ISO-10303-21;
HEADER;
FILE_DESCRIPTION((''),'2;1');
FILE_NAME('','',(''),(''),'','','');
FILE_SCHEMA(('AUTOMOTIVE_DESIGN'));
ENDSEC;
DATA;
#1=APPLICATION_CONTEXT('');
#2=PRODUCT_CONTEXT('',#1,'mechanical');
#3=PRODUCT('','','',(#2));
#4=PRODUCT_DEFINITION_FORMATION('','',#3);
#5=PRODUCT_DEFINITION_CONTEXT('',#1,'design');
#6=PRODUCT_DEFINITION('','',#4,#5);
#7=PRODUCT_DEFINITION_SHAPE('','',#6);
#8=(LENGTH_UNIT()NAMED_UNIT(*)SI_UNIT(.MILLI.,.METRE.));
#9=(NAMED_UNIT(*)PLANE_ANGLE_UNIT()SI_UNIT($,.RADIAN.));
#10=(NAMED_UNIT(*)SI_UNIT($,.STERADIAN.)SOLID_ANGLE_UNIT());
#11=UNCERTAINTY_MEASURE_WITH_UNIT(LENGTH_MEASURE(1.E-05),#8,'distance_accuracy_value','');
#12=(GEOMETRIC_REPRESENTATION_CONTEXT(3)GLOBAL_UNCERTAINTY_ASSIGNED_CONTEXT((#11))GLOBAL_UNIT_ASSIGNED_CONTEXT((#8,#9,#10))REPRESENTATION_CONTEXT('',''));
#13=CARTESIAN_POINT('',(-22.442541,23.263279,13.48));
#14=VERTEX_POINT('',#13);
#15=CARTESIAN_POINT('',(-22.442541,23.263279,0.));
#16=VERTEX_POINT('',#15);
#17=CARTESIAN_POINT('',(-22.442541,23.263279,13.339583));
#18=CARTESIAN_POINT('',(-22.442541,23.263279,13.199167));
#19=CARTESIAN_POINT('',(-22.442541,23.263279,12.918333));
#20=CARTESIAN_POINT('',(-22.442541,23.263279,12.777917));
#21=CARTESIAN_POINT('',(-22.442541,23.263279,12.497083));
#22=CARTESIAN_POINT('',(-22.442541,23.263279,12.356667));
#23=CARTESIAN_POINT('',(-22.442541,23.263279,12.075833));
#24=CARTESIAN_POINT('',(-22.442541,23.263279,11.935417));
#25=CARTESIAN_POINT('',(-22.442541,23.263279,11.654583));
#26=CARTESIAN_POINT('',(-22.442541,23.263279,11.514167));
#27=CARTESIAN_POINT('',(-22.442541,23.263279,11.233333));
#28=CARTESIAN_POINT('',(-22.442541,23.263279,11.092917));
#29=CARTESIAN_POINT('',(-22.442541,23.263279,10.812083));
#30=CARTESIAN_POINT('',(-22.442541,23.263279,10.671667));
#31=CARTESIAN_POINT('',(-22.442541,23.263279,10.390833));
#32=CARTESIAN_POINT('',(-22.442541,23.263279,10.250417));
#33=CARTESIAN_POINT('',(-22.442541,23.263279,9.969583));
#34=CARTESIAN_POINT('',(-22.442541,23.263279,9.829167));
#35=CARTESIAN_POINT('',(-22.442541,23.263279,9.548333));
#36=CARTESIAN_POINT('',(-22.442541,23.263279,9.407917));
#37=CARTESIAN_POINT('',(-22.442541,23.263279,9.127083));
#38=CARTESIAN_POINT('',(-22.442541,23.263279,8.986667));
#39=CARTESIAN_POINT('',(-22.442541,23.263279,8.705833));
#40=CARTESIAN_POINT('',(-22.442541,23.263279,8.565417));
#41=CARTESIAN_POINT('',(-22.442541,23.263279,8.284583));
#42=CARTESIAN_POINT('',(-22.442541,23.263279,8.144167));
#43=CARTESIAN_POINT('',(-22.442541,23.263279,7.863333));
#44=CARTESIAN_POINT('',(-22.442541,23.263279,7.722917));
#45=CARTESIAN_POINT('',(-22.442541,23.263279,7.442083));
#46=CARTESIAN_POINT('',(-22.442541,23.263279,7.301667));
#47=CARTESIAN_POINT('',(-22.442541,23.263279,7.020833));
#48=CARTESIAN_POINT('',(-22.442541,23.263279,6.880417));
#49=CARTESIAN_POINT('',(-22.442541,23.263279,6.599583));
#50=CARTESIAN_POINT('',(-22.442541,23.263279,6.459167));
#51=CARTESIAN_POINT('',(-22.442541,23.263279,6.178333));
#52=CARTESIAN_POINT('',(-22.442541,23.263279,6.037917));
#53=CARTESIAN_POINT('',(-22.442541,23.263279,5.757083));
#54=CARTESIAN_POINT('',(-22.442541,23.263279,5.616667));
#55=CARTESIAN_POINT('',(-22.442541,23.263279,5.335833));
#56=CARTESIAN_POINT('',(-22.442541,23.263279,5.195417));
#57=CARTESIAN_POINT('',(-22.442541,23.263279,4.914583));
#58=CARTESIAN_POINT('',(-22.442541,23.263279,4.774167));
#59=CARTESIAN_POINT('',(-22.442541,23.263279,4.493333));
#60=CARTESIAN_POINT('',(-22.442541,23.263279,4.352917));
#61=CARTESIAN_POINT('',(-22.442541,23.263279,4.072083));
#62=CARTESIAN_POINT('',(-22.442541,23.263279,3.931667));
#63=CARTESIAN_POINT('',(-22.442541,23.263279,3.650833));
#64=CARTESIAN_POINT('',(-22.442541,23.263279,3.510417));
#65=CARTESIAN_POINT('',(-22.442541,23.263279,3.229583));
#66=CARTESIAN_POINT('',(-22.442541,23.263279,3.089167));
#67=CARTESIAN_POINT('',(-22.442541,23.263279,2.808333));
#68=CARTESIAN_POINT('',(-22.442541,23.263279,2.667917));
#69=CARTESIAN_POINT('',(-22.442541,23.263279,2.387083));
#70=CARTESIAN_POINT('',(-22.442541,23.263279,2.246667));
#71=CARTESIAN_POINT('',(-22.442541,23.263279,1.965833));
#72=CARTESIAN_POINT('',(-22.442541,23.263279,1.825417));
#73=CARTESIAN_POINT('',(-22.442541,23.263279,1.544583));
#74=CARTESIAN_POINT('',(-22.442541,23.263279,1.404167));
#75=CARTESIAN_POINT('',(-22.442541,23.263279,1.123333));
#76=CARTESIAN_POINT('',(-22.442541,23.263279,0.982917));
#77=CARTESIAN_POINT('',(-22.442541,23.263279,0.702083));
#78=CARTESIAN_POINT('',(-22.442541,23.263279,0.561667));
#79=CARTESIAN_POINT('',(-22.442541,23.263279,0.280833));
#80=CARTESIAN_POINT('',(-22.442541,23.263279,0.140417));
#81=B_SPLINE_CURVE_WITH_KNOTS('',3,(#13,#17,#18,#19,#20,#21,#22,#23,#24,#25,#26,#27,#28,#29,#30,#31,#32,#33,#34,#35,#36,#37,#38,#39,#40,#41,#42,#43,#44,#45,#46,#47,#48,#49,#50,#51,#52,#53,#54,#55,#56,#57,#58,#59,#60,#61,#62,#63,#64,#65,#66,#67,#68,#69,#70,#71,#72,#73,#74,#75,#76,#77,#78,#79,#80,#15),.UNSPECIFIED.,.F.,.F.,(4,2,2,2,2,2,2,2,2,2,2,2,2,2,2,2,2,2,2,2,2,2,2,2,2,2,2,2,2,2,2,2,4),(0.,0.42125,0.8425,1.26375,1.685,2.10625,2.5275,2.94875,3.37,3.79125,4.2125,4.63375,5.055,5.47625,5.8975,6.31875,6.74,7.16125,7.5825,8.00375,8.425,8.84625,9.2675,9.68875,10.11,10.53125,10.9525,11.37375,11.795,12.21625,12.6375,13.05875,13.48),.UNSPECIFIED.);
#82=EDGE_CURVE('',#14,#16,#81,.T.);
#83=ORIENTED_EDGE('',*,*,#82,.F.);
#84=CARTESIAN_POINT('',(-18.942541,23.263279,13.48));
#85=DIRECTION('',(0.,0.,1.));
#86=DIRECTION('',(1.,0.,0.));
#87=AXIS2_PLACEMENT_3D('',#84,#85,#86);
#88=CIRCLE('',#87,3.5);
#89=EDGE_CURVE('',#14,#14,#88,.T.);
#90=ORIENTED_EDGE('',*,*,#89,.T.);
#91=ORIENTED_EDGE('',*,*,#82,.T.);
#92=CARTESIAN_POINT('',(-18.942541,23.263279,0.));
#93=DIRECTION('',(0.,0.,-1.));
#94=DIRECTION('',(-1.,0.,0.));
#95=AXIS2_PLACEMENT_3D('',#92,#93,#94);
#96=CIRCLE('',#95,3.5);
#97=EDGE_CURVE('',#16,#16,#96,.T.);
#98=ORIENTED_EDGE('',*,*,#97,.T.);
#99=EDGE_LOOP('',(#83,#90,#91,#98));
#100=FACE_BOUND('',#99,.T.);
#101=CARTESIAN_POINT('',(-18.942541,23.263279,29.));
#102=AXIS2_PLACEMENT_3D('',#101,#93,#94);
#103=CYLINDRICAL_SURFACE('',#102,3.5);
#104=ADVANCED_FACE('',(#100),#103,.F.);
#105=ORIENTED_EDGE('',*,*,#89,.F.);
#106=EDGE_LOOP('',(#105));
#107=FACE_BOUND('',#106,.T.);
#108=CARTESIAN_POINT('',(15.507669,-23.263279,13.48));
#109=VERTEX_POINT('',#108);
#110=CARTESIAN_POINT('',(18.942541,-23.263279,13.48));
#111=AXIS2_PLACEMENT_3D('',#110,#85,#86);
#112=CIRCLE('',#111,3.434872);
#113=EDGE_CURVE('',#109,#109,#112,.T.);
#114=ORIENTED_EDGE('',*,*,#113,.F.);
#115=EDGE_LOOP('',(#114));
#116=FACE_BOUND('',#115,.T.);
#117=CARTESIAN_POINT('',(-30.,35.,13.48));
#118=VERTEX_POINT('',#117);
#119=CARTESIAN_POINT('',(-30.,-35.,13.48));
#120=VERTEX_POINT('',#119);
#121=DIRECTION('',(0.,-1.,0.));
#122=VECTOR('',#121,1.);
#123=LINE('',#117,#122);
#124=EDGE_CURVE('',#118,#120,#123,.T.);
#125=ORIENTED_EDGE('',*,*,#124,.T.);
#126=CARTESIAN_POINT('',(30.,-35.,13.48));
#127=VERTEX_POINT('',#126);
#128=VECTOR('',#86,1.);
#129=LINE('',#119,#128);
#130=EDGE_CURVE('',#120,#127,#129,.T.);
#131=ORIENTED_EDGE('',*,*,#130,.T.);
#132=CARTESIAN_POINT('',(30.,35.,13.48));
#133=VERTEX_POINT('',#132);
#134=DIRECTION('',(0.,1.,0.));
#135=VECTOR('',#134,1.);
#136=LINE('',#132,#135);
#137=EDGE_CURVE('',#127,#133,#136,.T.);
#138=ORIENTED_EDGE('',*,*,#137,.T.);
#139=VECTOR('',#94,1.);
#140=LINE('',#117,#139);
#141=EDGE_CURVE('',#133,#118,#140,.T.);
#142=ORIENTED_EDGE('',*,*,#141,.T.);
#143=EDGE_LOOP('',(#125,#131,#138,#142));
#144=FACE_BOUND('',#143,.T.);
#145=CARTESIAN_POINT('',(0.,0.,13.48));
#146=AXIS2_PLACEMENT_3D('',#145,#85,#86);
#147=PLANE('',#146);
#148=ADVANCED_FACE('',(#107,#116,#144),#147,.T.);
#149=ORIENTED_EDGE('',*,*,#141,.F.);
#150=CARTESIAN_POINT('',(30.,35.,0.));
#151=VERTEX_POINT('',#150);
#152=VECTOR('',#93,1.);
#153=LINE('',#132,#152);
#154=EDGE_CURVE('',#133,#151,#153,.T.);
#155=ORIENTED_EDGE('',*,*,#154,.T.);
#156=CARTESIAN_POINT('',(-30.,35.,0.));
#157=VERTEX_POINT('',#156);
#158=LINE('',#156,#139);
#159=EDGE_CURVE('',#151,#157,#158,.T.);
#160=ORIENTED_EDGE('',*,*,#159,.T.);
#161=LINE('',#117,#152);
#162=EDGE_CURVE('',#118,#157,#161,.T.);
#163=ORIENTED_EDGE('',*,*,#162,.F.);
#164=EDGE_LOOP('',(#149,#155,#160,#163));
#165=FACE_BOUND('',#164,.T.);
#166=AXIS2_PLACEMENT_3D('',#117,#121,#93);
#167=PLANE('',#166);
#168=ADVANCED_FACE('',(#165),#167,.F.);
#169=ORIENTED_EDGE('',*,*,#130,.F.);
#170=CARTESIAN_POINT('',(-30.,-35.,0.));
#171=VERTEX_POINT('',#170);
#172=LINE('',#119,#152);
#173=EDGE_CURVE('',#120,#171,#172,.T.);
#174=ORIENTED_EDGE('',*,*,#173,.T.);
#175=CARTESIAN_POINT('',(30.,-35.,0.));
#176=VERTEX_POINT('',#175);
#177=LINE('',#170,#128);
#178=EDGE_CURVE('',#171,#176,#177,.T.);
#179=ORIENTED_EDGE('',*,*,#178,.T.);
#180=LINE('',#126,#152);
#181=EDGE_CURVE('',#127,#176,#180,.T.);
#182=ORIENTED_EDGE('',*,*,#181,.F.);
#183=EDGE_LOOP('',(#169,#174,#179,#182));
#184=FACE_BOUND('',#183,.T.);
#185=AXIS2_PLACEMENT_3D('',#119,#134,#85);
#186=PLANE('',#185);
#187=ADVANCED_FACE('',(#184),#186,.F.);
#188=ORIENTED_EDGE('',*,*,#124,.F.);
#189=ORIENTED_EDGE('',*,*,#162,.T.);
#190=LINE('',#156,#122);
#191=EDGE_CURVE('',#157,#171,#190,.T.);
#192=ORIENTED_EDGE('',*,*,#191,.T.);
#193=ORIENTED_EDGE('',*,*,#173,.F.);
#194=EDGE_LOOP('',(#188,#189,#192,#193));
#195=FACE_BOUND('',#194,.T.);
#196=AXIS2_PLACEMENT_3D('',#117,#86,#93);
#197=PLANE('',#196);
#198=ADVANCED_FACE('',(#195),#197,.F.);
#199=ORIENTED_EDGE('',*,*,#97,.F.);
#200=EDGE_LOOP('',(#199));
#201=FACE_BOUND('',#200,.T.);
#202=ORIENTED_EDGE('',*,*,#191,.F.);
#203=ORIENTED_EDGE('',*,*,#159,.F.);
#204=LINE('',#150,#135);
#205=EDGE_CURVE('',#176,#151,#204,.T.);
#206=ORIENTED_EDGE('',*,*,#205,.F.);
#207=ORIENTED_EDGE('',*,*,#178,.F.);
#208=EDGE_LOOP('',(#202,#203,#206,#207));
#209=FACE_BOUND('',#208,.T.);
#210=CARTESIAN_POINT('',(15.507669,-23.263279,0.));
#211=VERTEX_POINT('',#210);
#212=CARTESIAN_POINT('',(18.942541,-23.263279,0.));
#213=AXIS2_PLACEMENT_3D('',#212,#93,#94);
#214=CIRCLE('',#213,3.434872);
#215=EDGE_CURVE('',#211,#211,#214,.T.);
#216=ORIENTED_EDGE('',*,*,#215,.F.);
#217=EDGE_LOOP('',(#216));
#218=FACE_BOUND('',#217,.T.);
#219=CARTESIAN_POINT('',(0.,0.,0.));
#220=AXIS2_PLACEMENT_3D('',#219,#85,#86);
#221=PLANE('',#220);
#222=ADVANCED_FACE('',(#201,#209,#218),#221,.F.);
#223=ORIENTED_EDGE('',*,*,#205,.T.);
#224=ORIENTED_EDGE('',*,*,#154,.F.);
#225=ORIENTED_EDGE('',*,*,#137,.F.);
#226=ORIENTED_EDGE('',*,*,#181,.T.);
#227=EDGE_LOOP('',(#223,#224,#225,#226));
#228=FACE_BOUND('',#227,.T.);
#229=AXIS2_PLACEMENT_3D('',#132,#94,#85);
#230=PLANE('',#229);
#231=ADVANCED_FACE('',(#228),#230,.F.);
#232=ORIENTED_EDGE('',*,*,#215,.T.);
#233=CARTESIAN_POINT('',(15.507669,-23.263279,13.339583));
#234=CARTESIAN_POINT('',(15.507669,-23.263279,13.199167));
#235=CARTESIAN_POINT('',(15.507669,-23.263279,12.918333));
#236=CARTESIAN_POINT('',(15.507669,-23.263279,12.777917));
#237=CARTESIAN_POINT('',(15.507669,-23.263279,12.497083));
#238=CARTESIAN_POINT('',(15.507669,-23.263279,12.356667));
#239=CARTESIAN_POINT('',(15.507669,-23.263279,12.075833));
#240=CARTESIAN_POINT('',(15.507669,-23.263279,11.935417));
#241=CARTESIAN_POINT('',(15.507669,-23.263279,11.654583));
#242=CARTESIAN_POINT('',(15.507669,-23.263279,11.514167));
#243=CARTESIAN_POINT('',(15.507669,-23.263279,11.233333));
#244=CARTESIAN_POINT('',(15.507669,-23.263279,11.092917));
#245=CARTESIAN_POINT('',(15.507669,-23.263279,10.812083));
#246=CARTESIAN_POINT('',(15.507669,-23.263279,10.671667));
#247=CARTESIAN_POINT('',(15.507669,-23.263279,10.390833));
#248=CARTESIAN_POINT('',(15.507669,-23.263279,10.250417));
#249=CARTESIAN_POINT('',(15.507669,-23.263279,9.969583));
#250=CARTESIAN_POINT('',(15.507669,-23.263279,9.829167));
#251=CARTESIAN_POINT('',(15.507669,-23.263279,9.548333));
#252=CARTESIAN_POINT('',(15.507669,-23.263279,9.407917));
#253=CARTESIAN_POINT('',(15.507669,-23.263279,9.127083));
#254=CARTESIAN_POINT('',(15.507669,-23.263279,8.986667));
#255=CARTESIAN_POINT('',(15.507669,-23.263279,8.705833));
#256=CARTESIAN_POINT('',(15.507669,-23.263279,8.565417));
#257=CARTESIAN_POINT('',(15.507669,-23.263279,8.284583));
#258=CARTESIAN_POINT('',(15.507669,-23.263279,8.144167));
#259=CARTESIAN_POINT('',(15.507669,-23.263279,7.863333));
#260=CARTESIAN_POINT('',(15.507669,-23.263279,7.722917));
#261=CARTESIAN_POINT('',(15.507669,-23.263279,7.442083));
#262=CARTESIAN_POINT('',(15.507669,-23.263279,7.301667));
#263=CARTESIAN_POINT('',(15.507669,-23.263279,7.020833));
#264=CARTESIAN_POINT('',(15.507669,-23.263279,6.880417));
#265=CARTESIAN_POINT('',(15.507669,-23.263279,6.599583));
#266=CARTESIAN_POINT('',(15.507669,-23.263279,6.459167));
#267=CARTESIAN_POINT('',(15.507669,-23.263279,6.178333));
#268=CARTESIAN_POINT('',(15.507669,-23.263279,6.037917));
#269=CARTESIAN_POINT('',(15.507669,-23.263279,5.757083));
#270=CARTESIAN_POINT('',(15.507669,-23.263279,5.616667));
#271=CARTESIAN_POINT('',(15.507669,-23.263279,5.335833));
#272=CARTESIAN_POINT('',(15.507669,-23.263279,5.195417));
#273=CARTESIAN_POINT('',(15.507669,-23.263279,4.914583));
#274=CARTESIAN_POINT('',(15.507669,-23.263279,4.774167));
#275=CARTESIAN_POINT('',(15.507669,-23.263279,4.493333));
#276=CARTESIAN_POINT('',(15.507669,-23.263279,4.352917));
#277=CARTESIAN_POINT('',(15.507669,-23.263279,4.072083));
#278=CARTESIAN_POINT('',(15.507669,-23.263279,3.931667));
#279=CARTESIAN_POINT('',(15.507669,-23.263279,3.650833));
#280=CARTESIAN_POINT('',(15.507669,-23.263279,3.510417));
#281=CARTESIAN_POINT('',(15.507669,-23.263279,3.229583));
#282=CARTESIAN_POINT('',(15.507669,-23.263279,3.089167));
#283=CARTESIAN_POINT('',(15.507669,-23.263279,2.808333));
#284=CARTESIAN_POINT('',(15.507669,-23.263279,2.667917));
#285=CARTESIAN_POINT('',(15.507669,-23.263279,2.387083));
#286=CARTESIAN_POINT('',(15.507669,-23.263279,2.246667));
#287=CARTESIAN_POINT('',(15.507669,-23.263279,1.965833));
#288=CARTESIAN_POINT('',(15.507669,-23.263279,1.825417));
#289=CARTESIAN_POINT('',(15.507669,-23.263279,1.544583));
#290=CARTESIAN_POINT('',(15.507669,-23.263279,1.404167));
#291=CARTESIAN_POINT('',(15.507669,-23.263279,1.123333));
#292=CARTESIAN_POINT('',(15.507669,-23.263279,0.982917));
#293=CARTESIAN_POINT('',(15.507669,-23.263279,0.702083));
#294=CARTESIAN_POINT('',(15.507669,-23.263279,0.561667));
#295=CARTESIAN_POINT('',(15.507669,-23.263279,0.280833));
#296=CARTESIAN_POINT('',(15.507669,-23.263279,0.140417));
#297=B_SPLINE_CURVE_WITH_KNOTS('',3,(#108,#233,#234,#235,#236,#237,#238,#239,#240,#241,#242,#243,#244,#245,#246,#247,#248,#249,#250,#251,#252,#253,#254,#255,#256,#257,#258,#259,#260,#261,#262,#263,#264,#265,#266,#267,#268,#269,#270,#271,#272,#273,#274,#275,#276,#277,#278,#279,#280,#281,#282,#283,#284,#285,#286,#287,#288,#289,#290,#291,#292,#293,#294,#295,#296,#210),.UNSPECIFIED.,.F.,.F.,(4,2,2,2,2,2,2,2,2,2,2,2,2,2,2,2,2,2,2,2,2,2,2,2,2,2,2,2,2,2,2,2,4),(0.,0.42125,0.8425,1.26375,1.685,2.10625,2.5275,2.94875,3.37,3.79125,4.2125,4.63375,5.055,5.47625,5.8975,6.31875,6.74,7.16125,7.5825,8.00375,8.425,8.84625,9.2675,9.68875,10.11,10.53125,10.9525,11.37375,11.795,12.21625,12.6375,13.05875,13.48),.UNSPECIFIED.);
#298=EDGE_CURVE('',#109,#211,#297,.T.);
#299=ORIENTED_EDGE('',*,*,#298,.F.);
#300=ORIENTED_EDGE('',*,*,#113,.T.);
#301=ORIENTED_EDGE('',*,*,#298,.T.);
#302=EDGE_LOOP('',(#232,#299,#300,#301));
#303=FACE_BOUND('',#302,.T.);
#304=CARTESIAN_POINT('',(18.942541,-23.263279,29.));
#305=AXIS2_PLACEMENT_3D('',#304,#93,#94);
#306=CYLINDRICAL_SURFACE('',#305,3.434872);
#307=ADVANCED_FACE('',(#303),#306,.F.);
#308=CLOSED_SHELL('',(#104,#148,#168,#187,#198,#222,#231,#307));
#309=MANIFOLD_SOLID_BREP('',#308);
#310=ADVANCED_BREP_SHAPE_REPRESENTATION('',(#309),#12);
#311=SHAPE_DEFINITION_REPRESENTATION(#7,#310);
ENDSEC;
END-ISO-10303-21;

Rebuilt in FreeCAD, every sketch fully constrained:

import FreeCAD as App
import Part
import Sketcher
from FreeCAD import Vector
Q = App.Units.Quantity


def add_polygon(sketch, points):
    """Adds a closed chain of lines whose ends are joined by coincident constraints."""
    first, n = sketch.GeometryCount, len(points)
    for a, b in zip(points, points[1:] + points[:1]):
        sketch.addGeometry(Part.LineSegment(App.Vector(*a, 0), App.Vector(*b, 0)), False)
    for i in range(n):
        sketch.addConstraint(Sketcher.Constraint("Coincident", first + i, 2, first + (i + 1) % n, 1))

doc = App.newDocument("Part")
body = doc.addObject("PartDesign::Body", "Body")

# Sketch on XY plane
sketch1 = body.newObject("Sketcher::SketchObject", "Sketch")
sketch1.AttachmentSupport = (doc.getObject("XY_Plane"), [""])
sketch1.MapMode = "FlatFace"
add_polygon(sketch1, [(-30, 35), (-30, -35), (30, -35), (30, 35)])  # lines 0-3
sketch1.addConstraint(Sketcher.Constraint("Vertical", 0))
sketch1.addConstraint(Sketcher.Constraint("Horizontal", 1))
sketch1.addConstraint(Sketcher.Constraint("Vertical", 2))
sketch1.addConstraint(Sketcher.Constraint("Horizontal", 3))
sketch1.addConstraint(Sketcher.Constraint("Symmetric", 0, 2, 2, 2, -1, 1))
sketch1.addConstraint(Sketcher.Constraint("DistanceX", 1, 1, 1, 2, Q("60 mm")))
sketch1.addConstraint(Sketcher.Constraint("DistanceY", 0, 2, 0, 1, Q("70 mm")))
pad1 = body.newObject("PartDesign::Pad", "Pad")
pad1.Profile = sketch1
pad1.Length = 13.48

# Sketch on XY plane
sketch2 = body.newObject("Sketcher::SketchObject", "Sketch001")
sketch2.AttachmentSupport = (doc.getObject("XY_Plane"), [""])
sketch2.MapMode = "FlatFace"
sketch2.addGeometry(Part.Circle(Vector(18.9, -23.3, 0), Vector(0, 0, 1), 3.4), False)
sketch2.addGeometry(Part.Circle(Vector(-18.9, 23.3, 0), Vector(0, 0, 1), 3.5), False)
sketch2.addConstraint(Sketcher.Constraint("Symmetric", 0, 3, 1, 3, -1, 1))
sketch2.addConstraint(Sketcher.Constraint("Diameter", 1, Q("7 mm")))
sketch2.addConstraint(Sketcher.Constraint("Diameter", 0, Q("6.869744 mm")))
sketch2.addConstraint(Sketcher.Constraint("DistanceX", -1, 1, 0, 3, Q("18.942541 mm")))
sketch2.addConstraint(Sketcher.Constraint("DistanceY", 0, 3, -1, 1, Q("23.263279 mm")))
pocket1 = body.newObject("PartDesign::Pocket", "Pocket")
pocket1.Profile = sketch2
pocket1.Length = 29
pocket1.Reversed = True

doc.recompute()
